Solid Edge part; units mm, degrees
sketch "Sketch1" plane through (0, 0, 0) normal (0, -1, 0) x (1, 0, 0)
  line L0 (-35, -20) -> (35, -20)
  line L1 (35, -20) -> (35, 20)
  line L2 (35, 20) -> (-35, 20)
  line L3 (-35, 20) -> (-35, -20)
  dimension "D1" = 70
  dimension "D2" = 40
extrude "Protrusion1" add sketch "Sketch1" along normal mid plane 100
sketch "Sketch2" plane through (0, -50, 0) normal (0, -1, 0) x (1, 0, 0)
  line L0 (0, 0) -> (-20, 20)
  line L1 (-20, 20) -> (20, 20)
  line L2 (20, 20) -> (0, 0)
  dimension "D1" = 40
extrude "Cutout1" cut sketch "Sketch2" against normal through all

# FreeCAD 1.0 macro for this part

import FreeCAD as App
import Part
import Sketcher

V = App.Vector
Q = App.Units.Quantity


def add_polygon(sketch, points):
    """Adds a closed chain of lines whose ends are joined by coincident constraints."""
    first, n = sketch.GeometryCount, len(points)
    for a, b in zip(points, points[1:] + points[:1]):
        sketch.addGeometry(Part.LineSegment(App.Vector(*a, 0), App.Vector(*b, 0)), False)
    for i in range(n):
        sketch.addConstraint(Sketcher.Constraint("Coincident", first + i, 2, first + (i + 1) % n, 1))

doc = App.newDocument("Part")
body = doc.addObject("PartDesign::Body", "Body")

sketch1 = body.newObject("Sketcher::SketchObject", "Sketch")
sketch1.AttachmentSupport = (doc.getObject("XZ_Plane"), [""])
sketch1.MapMode = "FlatFace"
add_polygon(sketch1, [(-35, 20), (-35, -20), (35, -20), (35, 20)])
sketch1.addConstraint(Sketcher.Constraint("Vertical", 0))
sketch1.addConstraint(Sketcher.Constraint("Horizontal", 1))
sketch1.addConstraint(Sketcher.Constraint("Vertical", 2))
sketch1.addConstraint(Sketcher.Constraint("Horizontal", 3))
sketch1.addConstraint(Sketcher.Constraint("Symmetric", 0, 2, 2, 2, -1, 1))
sketch1.addConstraint(Sketcher.Constraint("DistanceX", 0, 2, -1, 1, Q("35 mm")))
sketch1.addConstraint(Sketcher.Constraint("DistanceY", 0, 2, 0, 1, Q("40 mm")))
pad1 = body.newObject("PartDesign::Pad", "Pad")
pad1.Profile = sketch1
pad1.Length = 100
pad1.Midplane = True

sketch2 = body.newObject("Sketcher::SketchObject", "Sketch001")
sketch2.AttachmentSupport = (doc.getObject("XZ_Plane"), [""])
sketch2.MapMode = "FlatFace"
sketch2.AttachmentOffset = App.Placement(V(0, 0, 50), App.Rotation())
add_polygon(sketch2, [(-20, 20), (0, 0), (20, 20)])
sketch2.addConstraint(Sketcher.Constraint("Horizontal", 2))
sketch2.addConstraint(Sketcher.Constraint("Coincident", 0, 2, -1, 1))
sketch2.addConstraint(Sketcher.Constraint("Perpendicular", 0, 1))
sketch2.addConstraint(Sketcher.Constraint("Equal", 0, 1))
sketch2.addConstraint(Sketcher.Constraint("DistanceX", -1, 1, 1, 2, Q("20 mm")))
pocket1 = body.newObject("PartDesign::Pocket", "Pocket")
pocket1.Profile = sketch2
pocket1.Type = "ThroughAll"

doc.recompute()
